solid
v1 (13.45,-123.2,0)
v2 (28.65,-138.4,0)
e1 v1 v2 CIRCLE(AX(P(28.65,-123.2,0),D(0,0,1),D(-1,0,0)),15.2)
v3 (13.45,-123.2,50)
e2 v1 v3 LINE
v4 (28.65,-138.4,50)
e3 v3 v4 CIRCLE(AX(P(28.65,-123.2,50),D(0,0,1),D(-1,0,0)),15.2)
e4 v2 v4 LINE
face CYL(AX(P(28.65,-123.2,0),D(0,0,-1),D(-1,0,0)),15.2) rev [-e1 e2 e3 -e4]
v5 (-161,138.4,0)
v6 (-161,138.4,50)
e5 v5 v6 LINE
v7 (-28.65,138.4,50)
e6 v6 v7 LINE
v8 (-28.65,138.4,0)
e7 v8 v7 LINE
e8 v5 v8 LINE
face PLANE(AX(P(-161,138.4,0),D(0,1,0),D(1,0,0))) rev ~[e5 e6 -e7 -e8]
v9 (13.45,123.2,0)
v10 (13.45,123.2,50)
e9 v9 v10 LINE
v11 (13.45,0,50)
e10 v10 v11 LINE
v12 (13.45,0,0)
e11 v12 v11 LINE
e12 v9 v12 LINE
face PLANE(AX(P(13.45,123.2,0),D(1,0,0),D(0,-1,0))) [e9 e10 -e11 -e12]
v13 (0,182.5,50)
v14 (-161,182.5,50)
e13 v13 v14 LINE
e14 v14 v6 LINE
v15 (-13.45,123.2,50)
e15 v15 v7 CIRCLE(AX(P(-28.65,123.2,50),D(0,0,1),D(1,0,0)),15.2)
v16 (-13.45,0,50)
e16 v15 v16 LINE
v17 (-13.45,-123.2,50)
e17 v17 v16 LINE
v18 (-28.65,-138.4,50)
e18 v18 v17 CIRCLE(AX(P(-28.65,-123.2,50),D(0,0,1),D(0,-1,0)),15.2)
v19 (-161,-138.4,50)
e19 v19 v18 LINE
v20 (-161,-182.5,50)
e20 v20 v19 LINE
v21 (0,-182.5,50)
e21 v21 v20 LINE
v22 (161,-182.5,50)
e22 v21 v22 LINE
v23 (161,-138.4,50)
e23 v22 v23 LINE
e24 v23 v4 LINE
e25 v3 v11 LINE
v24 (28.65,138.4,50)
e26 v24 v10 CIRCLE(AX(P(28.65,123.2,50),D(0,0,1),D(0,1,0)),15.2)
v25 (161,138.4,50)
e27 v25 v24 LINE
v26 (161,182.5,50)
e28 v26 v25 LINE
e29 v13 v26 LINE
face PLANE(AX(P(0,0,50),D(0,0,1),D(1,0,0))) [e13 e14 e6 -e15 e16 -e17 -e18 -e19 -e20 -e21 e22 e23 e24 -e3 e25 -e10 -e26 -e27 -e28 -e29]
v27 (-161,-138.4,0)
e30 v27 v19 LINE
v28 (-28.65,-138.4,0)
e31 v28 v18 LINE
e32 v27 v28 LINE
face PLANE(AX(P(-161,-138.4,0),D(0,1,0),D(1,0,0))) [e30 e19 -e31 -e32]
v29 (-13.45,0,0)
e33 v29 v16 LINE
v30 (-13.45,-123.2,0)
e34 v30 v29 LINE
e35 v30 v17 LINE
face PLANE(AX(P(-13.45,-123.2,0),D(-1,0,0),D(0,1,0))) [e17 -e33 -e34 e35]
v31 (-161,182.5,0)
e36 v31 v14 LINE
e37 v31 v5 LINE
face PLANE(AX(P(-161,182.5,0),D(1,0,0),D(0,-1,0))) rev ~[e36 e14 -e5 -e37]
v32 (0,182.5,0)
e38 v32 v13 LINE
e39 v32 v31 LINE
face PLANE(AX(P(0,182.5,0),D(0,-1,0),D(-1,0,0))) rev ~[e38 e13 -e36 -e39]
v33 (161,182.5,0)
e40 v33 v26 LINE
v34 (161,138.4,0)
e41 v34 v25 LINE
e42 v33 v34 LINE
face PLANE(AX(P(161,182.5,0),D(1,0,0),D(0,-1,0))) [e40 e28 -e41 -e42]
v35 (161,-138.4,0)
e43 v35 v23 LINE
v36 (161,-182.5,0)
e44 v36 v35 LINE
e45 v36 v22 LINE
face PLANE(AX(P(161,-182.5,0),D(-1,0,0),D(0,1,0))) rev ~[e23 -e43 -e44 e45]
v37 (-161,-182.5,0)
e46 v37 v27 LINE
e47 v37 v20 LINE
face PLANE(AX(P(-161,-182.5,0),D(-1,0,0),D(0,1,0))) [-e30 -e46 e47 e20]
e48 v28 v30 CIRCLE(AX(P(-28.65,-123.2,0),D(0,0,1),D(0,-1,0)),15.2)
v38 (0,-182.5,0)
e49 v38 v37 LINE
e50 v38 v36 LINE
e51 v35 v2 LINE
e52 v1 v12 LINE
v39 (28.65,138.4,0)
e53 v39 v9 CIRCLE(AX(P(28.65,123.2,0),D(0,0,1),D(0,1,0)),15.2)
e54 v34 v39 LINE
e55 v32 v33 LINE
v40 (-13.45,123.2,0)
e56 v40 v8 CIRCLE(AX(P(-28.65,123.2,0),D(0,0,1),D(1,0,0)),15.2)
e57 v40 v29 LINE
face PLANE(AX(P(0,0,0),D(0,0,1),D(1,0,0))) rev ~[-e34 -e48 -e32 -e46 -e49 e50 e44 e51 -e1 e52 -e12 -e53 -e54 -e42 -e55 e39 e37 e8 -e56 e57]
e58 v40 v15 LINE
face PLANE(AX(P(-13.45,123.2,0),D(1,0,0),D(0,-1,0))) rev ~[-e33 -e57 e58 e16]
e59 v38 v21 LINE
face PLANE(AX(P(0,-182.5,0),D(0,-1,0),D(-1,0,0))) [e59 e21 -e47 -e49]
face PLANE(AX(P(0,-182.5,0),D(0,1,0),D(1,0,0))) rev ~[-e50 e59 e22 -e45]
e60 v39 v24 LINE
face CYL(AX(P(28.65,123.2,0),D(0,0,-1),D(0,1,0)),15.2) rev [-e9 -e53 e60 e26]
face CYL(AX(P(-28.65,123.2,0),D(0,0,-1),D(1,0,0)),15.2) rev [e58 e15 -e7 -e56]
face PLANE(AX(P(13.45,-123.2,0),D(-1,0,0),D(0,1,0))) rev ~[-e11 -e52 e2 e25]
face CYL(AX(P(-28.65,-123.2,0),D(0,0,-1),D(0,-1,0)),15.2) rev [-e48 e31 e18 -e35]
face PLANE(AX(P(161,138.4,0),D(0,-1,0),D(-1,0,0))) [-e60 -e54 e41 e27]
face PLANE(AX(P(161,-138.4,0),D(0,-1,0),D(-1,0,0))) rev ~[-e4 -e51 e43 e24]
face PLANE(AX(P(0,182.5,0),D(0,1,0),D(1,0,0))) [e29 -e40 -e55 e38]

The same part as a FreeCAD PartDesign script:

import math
import FreeCAD as App
import Part
import Sketcher
from FreeCAD import Vector
Q = App.Units.Quantity

doc = App.newDocument("Part")
body = doc.addObject("PartDesign::Body", "Body")

sketch1 = body.newObject("Sketcher::SketchObject", "Sketch")
sketch1.AttachmentSupport = (doc.getObject("XY_Plane"), [""])
sketch1.MapMode = "FlatFace"
sketch1.addGeometry(Part.LineSegment(Vector(-161, -138, 0), Vector(-161, -182, 0)), False)
sketch1.addGeometry(Part.LineSegment(Vector(-161, -182, 0), Vector(161, -182, 0)), False)
sketch1.addGeometry(Part.LineSegment(Vector(161, -182, 0), Vector(161, -138, 0)), False)
sketch1.addGeometry(Part.LineSegment(Vector(161, -138, 0), Vector(29, -138, 0)), False)
sketch1.addGeometry(Part.ArcOfCircle(Part.Circle(Vector(29, -123, 0), Vector(0, 0, 1), 15), math.radians(180), math.radians(270)), False)
sketch1.addGeometry(Part.LineSegment(Vector(13, -123, 0), Vector(13, 123, 0)), False)
sketch1.addGeometry(Part.ArcOfCircle(Part.Circle(Vector(29, 123, 0), Vector(0, 0, 1), 15), math.radians(90), math.radians(180)), False)
sketch1.addGeometry(Part.LineSegment(Vector(29, 138, 0), Vector(161, 138, 0)), False)
sketch1.addGeometry(Part.LineSegment(Vector(161, 138, 0), Vector(161, 182, 0)), False)
sketch1.addGeometry(Part.LineSegment(Vector(161, 182, 0), Vector(-161, 182, 0)), False)
sketch1.addGeometry(Part.LineSegment(Vector(-161, 182, 0), Vector(-161, 138, 0)), False)
sketch1.addGeometry(Part.LineSegment(Vector(-161, 138, 0), Vector(-29, 138, 0)), False)
sketch1.addGeometry(Part.ArcOfCircle(Part.Circle(Vector(-29, 123, 0), Vector(0, 0, 1), 15), math.radians(0), math.radians(90)), False)
sketch1.addGeometry(Part.LineSegment(Vector(-13, 123, 0), Vector(-13, -123, 0)), False)
sketch1.addGeometry(Part.ArcOfCircle(Part.Circle(Vector(-29, -123, 0), Vector(0, 0, 1), 15), math.radians(-90), math.radians(0)), False)
sketch1.addGeometry(Part.LineSegment(Vector(-29, -138, 0), Vector(-161, -138, 0)), False)
sketch1.addConstraint(Sketcher.Constraint("Coincident", 0, 2, 1, 1))
sketch1.addConstraint(Sketcher.Constraint("Coincident", 1, 2, 2, 1))
sketch1.addConstraint(Sketcher.Constraint("Coincident", 2, 2, 3, 1))
sketch1.addConstraint(Sketcher.Constraint("Tangent", 3, 2, 4, 2))
sketch1.addConstraint(Sketcher.Constraint("Tangent", 4, 1, 5, 1))
sketch1.addConstraint(Sketcher.Constraint("Tangent", 5, 2, 6, 2))
sketch1.addConstraint(Sketcher.Constraint("Tangent", 6, 1, 7, 1))
sketch1.addConstraint(Sketcher.Constraint("Coincident", 7, 2, 8, 1))
sketch1.addConstraint(Sketcher.Constraint("Coincident", 8, 2, 9, 1))
sketch1.addConstraint(Sketcher.Constraint("Coincident", 9, 2, 10, 1))
sketch1.addConstraint(Sketcher.Constraint("Coincident", 10, 2, 11, 1))
sketch1.addConstraint(Sketcher.Constraint("Tangent", 11, 2, 12, 2))
sketch1.addConstraint(Sketcher.Constraint("Tangent", 12, 1, 13, 1))
sketch1.addConstraint(Sketcher.Constraint("Tangent", 13, 2, 14, 2))
sketch1.addConstraint(Sketcher.Constraint("Tangent", 14, 1, 15, 1))
sketch1.addConstraint(Sketcher.Constraint("Coincident", 15, 2, 0, 1))
sketch1.addConstraint(Sketcher.Constraint("Vertical", 0))
sketch1.addConstraint(Sketcher.Constraint("Horizontal", 1))
sketch1.addConstraint(Sketcher.Constraint("Vertical", 2))
sketch1.addConstraint(Sketcher.Constraint("Horizontal", 3))
sketch1.addConstraint(Sketcher.Constraint("Vertical", 5))
sketch1.addConstraint(Sketcher.Constraint("Horizontal", 7))
sketch1.addConstraint(Sketcher.Constraint("Vertical", 8))
sketch1.addConstraint(Sketcher.Constraint("Horizontal", 9))
sketch1.addConstraint(Sketcher.Constraint("Vertical", 10))
sketch1.addConstraint(Sketcher.Constraint("Horizontal", 11))
sketch1.addConstraint(Sketcher.Constraint("Vertical", 13))
sketch1.addConstraint(Sketcher.Constraint("Horizontal", 15))
sketch1.addConstraint(Sketcher.Constraint("Equal", 4, 6))
sketch1.addConstraint(Sketcher.Constraint("Equal", 6, 12))
sketch1.addConstraint(Sketcher.Constraint("Equal", 12, 14))
sketch1.addConstraint(Sketcher.Constraint("Symmetric", 4, 3, 12, 3, -1, 1))
sketch1.addConstraint(Sketcher.Constraint("Symmetric", 0, 2, 8, 2, -1, 1))
sketch1.addConstraint(Sketcher.Constraint("Symmetric", 7, 2, 10, 2, -2))
sketch1.addConstraint(Sketcher.Constraint("Symmetric", 2, 2, 15, 2, -2))
sketch1.addConstraint(Sketcher.Constraint("Radius", 4, Q("15.2 mm")))
sketch1.addConstraint(Sketcher.Constraint("DistanceY", 0, 2, 0, 1, Q("44.1 mm")))
sketch1.addConstraint(Sketcher.Constraint("DistanceX", 0, 2, -1, 1, Q("161 mm")))
sketch1.addConstraint(Sketcher.Constraint("DistanceY", 0, 2, -1, 1, Q("182.5 mm")))
sketch1.addConstraint(Sketcher.Constraint("DistanceX", -1, 1, 4, 1, Q("13.45 mm")))
pad1 = body.newObject("PartDesign::Pad", "Pad")
pad1.Profile = sketch1
pad1.Length = 50

doc.recompute()
